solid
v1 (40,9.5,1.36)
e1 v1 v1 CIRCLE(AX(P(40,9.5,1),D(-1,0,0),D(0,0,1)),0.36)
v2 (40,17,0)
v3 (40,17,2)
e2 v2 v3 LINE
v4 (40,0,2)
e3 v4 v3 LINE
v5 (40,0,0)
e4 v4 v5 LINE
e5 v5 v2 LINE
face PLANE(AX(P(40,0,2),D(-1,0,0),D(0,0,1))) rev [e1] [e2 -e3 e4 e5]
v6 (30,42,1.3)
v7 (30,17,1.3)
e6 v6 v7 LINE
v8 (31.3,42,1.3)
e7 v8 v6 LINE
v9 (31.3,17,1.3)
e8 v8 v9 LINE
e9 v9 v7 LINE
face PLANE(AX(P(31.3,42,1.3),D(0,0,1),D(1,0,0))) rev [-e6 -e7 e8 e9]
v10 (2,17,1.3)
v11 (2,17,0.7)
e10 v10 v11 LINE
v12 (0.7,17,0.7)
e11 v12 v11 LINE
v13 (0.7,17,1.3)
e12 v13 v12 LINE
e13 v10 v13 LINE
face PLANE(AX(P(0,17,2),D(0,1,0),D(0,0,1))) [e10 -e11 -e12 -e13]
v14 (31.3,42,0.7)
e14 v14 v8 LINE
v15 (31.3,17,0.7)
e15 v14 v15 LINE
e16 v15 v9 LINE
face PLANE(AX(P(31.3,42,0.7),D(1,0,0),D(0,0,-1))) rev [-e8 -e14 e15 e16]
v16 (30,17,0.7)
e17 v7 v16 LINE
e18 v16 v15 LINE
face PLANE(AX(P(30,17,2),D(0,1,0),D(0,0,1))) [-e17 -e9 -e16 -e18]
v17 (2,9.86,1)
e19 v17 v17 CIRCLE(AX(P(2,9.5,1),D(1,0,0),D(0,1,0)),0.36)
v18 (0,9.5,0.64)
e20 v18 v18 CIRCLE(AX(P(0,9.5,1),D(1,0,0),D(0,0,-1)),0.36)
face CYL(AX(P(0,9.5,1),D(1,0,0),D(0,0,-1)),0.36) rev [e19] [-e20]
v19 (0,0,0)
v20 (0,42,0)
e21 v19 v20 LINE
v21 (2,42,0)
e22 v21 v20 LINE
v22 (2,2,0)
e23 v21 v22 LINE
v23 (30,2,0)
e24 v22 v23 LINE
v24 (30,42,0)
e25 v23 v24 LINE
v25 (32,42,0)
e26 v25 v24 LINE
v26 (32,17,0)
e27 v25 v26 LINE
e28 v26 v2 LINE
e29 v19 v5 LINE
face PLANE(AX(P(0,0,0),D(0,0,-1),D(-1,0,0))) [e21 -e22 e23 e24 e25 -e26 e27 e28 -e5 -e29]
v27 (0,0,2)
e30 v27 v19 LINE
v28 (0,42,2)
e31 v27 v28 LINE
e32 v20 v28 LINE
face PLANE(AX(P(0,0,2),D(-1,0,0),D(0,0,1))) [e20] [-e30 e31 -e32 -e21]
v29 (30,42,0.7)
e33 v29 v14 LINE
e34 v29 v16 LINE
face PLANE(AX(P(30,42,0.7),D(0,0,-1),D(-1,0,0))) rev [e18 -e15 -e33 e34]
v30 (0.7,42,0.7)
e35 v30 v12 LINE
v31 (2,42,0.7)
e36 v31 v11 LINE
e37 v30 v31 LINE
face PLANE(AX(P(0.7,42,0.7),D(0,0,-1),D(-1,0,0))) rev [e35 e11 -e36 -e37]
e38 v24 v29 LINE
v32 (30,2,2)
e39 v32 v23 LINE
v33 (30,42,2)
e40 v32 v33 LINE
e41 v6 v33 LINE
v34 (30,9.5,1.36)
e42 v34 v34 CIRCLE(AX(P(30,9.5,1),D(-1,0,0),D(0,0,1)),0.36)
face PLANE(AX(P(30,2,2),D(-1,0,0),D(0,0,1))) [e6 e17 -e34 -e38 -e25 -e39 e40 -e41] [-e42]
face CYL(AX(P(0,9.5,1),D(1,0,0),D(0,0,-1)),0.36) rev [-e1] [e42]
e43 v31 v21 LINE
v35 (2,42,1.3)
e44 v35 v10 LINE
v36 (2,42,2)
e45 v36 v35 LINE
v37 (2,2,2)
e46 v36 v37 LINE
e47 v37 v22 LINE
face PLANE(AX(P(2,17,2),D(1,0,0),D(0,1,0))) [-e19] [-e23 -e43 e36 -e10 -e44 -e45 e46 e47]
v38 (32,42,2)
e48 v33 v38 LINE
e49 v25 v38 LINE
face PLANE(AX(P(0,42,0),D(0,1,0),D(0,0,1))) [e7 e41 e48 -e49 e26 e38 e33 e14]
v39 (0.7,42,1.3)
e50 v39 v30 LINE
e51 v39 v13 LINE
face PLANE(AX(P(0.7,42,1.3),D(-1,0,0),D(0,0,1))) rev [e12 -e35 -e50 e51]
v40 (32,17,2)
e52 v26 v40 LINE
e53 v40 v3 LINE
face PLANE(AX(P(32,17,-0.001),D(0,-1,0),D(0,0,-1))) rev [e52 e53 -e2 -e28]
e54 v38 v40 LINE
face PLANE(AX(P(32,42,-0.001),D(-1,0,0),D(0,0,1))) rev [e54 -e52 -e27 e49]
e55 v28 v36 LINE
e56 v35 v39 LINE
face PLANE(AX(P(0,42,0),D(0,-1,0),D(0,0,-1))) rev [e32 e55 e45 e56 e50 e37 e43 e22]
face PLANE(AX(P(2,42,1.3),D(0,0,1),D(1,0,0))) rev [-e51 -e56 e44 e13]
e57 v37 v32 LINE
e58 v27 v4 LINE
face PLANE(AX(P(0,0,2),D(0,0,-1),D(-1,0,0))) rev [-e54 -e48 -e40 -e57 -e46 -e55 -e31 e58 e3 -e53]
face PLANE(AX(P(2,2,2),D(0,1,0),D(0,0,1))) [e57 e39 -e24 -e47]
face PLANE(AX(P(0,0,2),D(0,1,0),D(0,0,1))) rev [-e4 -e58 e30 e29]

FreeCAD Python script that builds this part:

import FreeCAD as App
import Part
import Sketcher
Q = App.Units.Quantity


def add_polygon(sketch, points):
    """Adds a closed chain of lines whose ends are joined by coincident constraints."""
    first, n = sketch.GeometryCount, len(points)
    for a, b in zip(points, points[1:] + points[:1]):
        sketch.addGeometry(Part.LineSegment(App.Vector(*a, 0), App.Vector(*b, 0)), False)
    for i in range(n):
        sketch.addConstraint(Sketcher.Constraint("Coincident", first + i, 2, first + (i + 1) % n, 1))

doc = App.newDocument("Part")
body = doc.addObject("PartDesign::Body", "Body")

sketch1 = body.newObject("Sketcher::SketchObject", "Sketch")
sketch1.AttachmentSupport = (doc.getObject("XY_Plane"), [""])
sketch1.MapMode = "FlatFace"
add_polygon(sketch1, [(2, 2), (2, 17), (0, 17), (0, 0), (40, 0), (40, 17), (30, 17), (30, 2)])
sketch1.addConstraint([
    Sketcher.Constraint("Vertical", 0),
    Sketcher.Constraint("Horizontal", 1),
    Sketcher.Constraint("Vertical", 2),
    Sketcher.Constraint("Horizontal", 3),
    Sketcher.Constraint("Vertical", 4),
    Sketcher.Constraint("Horizontal", 5),
    Sketcher.Constraint("Vertical", 6),
    Sketcher.Constraint("Horizontal", 7),
    Sketcher.Constraint("Coincident", 2, 2, -1, 1),
    Sketcher.Constraint("Horizontal", 1, 2, 4, 2),
    Sketcher.Constraint("DistanceX", 1, 2, 1, 1, Q("2 mm")),
    Sketcher.Constraint("DistanceX", 3, 1, 3, 2, Q("40 mm")),
    Sketcher.Constraint("DistanceX", 5, 2, 5, 1, Q("10 mm")),
    Sketcher.Constraint("DistanceY", 0, 1, 0, 2, Q("15 mm")),
    Sketcher.Constraint("DistanceY", 2, 2, 2, 1, Q("17 mm")),
])
pad1 = body.newObject("PartDesign::Pad", "Pad")
pad1.Profile = sketch1
pad1.Length = 2

sketch2 = body.newObject("Sketcher::SketchObject", "Sketch001")
sketch2.AttachmentSupport = (doc.getObject("YZ_Plane"), [""])
sketch2.MapMode = "FlatFace"
sketch2.AttachmentOffset = App.Placement(App.Vector(0, 0, 40), App.Rotation())
sketch2.addGeometry(Part.Circle(App.Vector(9.5, 1, 0), App.Vector(0, 0, 1), 0.36), False)
sketch2.addConstraint([
    Sketcher.Constraint("Diameter", 0, Q("0.72 mm")),
    Sketcher.Constraint("DistanceY", -1, 1, 0, 3, Q("1 mm")),
    Sketcher.Constraint("DistanceX", -1, 1, 0, 3, Q("9.5 mm")),
])
pocket1 = body.newObject("PartDesign::Pocket", "Pocket")
pocket1.Profile = sketch2
pocket1.Type = "ThroughAll"
pocket1.Midplane = True

sketch3 = body.newObject("Sketcher::SketchObject", "Sketch002")
sketch3.AttachmentSupport = (doc.getObject("XZ_Plane"), [""])
sketch3.MapMode = "FlatFace"
sketch3.AttachmentOffset = App.Placement(App.Vector(0, 0, -17), App.Rotation())
add_polygon(sketch3, [(0, 2), (2, 2), (2, 1.3), (0.7, 1.3), (0.7, 0.7), (2, 0.7), (2, 0), (0, 0)])
sketch3.addConstraint([
    Sketcher.Constraint("Horizontal", 0),
    Sketcher.Constraint("Vertical", 1),
    Sketcher.Constraint("Horizontal", 2),
    Sketcher.Constraint("Vertical", 3),
    Sketcher.Constraint("Horizontal", 4),
    Sketcher.Constraint("Vertical", 5),
    Sketcher.Constraint("Horizontal", 6),
    Sketcher.Constraint("Vertical", 7),
    Sketcher.Constraint("Coincident", 6, 2, -1, 1),
    Sketcher.Constraint("Vertical", 1, 2, 4, 2),
    Sketcher.Constraint("Equal", 1, 5),
    Sketcher.Constraint("Equal", 6, 7),
    Sketcher.Constraint("DistanceX", 0, 1, 0, 2, Q("2 mm")),
    Sketcher.Constraint("DistanceX", 2, 2, 2, 1, Q("1.3 mm")),
    Sketcher.Constraint("DistanceY", 1, 2, 1, 1, Q("0.7 mm")),
])
pad2 = body.newObject("PartDesign::Pad", "Pad001")
pad2.Profile = sketch3
pad2.Length = 25
pad2.Reversed = True

sketch4 = body.newObject("Sketcher::SketchObject", "Sketch003")
sketch4.AttachmentSupport = (doc.getObject("XZ_Plane"), [""])
sketch4.MapMode = "FlatFace"
sketch4.AttachmentOffset = App.Placement(App.Vector(0, 0, -17), App.Rotation())
add_polygon(sketch4, [(30, 2), (40, 2), (40, 0), (30, 0), (30, 0.7), (31.3, 0.7), (31.3, 1.3), (30, 1.3)])
sketch4.addConstraint([
    Sketcher.Constraint("Horizontal", 0),
    Sketcher.Constraint("Vertical", 1),
    Sketcher.Constraint("Horizontal", 2),
    Sketcher.Constraint("Vertical", 3),
    Sketcher.Constraint("Horizontal", 4),
    Sketcher.Constraint("Vertical", 5),
    Sketcher.Constraint("Horizontal", 6),
    Sketcher.Constraint("Vertical", 7),
    Sketcher.Constraint("PointOnObject", 1, 2, -1),
    Sketcher.Constraint("Vertical", 3, 2, 6, 2),
    Sketcher.Constraint("Equal", 3, 7),
    Sketcher.Constraint("DistanceX", 0, 1, 0, 2, Q("10 mm")),
    Sketcher.Constraint("DistanceY", 1, 2, 1, 1, Q("2 mm")),
    Sketcher.Constraint("DistanceX", 4, 1, 4, 2, Q("1.3 mm")),
    Sketcher.Constraint("DistanceY", 3, 1, 3, 2, Q("0.7 mm")),
    Sketcher.Constraint("DistanceX", -1, 1, 0, 2, Q("40 mm")),
])
pad3 = body.newObject("PartDesign::Pad", "Pad002")
pad3.Profile = sketch4
pad3.Length = 25
pad3.Reversed = True

sketch5 = body.newObject("Sketcher::SketchObject", "Sketch004")
sketch5.AttachmentSupport = (doc.getObject("XY_Plane"), [""])
sketch5.MapMode = "FlatFace"
sketch5.AttachmentOffset = App.Placement(App.Vector(0, 0, 2), App.Rotation())
add_polygon(sketch5, [(32, 42), (32, 17), (40, 17), (40, 42)])
sketch5.addConstraint([
    Sketcher.Constraint("Vertical", 0),
    Sketcher.Constraint("Horizontal", 1),
    Sketcher.Constraint("Vertical", 2),
    Sketcher.Constraint("Horizontal", 3),
    Sketcher.Constraint("DistanceX", 1, 1, 1, 2, Q("8 mm")),
    Sketcher.Constraint("DistanceY", 0, 2, 0, 1, Q("25 mm")),
    Sketcher.Constraint("DistanceX", -1, 1, 0, 2, Q("32 mm")),
    Sketcher.Constraint("DistanceY", -1, 1, 0, 2, Q("17 mm")),
])
pocket2 = body.newObject("PartDesign::Pocket", "Pocket001")
pocket2.Profile = sketch5
pocket2.Type = "UpToFirst"

doc.recompute()
